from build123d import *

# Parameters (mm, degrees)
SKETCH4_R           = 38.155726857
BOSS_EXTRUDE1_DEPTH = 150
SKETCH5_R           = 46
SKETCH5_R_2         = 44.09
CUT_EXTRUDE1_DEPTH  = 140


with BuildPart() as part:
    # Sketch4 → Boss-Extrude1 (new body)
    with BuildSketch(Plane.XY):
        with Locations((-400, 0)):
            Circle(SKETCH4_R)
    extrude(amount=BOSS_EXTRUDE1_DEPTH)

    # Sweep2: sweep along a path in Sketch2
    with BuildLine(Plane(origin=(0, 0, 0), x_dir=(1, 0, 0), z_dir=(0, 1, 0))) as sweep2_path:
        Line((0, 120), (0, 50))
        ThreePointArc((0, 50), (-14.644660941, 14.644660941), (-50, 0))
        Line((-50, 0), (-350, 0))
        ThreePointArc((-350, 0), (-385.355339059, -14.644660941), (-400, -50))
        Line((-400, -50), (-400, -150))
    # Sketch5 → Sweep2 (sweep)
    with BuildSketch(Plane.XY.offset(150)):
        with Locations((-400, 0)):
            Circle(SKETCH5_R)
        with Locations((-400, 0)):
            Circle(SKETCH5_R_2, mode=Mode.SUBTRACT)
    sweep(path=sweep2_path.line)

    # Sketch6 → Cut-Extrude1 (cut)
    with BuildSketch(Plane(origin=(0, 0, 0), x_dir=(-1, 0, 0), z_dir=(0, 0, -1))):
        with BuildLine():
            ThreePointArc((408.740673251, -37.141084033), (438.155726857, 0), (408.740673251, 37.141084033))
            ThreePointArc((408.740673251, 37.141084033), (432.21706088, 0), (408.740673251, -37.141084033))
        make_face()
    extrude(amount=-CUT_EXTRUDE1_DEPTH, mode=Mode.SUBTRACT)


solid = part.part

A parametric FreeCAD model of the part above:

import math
import FreeCAD as App
import Part
import Sketcher

doc = App.newDocument("Part")
body = doc.addObject("PartDesign::Body", "Body")

sketch1 = body.newObject("Sketcher::SketchObject", "Sketch")
sketch1.AttachmentSupport = (doc.getObject("XY_Plane"), [""])
sketch1.MapMode = "FlatFace"
sketch1.addGeometry(Part.Circle(App.Vector(-400, 0, 0), App.Vector(0, 0, 1), 38), False)
sketch1.addConstraint([
    Sketcher.Constraint("PointOnObject", 0, 3, -1),
    Sketcher.Constraint("DistanceX", 0, 3, -1, 1, 400.0),
    Sketcher.Constraint("Diameter", 0, 76.311454),
])
pad1 = body.newObject("PartDesign::Pad", "Pad")
pad1.Profile = sketch1
pad1.Length = 150

sketch2 = body.newObject("Sketcher::SketchObject", "Sketch001")
sketch2.AttachmentSupport = (doc.getObject("XY_Plane"), [""])
sketch2.MapMode = "FlatFace"
sketch2.AttachmentOffset = App.Placement(App.Vector(0, 0, 150), App.Rotation())
sketch2.addGeometry([
    Part.Circle(App.Vector(-400, 0, 0), App.Vector(0, 0, 1), 46),
    Part.Circle(App.Vector(-400, 0, 0), App.Vector(0, 0, 1), 44),
], False)
sketch2.addConstraint([
    Sketcher.Constraint("Coincident", 1, 3, 0, 3),
    Sketcher.Constraint("PointOnObject", 0, 3, -1),
    Sketcher.Constraint("Diameter", 0, 92.0),
    Sketcher.Constraint("Diameter", 1, 88.18),
    Sketcher.Constraint("DistanceX", 0, 3, -1, 1, 400.0),
])

sketch3 = body.newObject("Sketcher::SketchObject", "Sketch002")
sketch3.AttachmentSupport = (doc.getObject("XZ_Plane"), [""])
sketch3.MapMode = "FlatFace"
sketch3.addGeometry([
    Part.LineSegment(App.Vector(0, -120, 0), App.Vector(0, -50, 0)),
    Part.ArcOfCircle(Part.Circle(App.Vector(-50, -50, 0), App.Vector(0, 0, 1), 50), math.radians(0), math.radians(90)),
    Part.LineSegment(App.Vector(-50, 0, 0), App.Vector(-350, 0, 0)),
    Part.ArcOfCircle(Part.Circle(App.Vector(-350, 50, 0), App.Vector(0, 0, 1), 50), math.radians(-180), math.radians(-90)),
    Part.LineSegment(App.Vector(-400, 50, 0), App.Vector(-400, 150, 0)),
], False)
sketch3.addConstraint([
    Sketcher.Constraint("Tangent", 0, 2, 1, 1),
    Sketcher.Constraint("Tangent", 1, 2, 2, 1),
    Sketcher.Constraint("Tangent", 2, 2, 3, 2),
    Sketcher.Constraint("Tangent", 3, 1, 4, 1),
    Sketcher.Constraint("Vertical", 0),
    Sketcher.Constraint("Horizontal", 2),
    Sketcher.Constraint("Vertical", 4),
    Sketcher.Constraint("Equal", 1, 3),
    Sketcher.Constraint("PointOnObject", 0, 1, -2),
    Sketcher.Constraint("PointOnObject", 1, 2, -1),
    Sketcher.Constraint("Radius", 1, 50.0),
    Sketcher.Constraint("DistanceX", 2, 2, 2, 1, 300.0),
    Sketcher.Constraint("DistanceY", 0, 1, 0, 2, 70.0),
    Sketcher.Constraint("DistanceY", 4, 1, 4, 2, 100.0),
])
doc.recompute()

additivepipe = body.newObject("PartDesign::AdditivePipe", "AdditivePipe")
additivepipe.Profile = sketch2
additivepipe.Spine = (sketch3, ["Edge1", "Edge2", "Edge3", "Edge4", "Edge5"])

sketch4 = body.newObject("Sketcher::SketchObject", "Sketch003")
sketch4.AttachmentSupport = (doc.getObject("XY_Plane"), [""])
sketch4.MapMode = "FlatFace"
sketch4.addGeometry([
    Part.ArcOfCircle(Part.Circle(App.Vector(-400, 0, 0), App.Vector(0, 0, 1), 38), math.radians(103), math.radians(257)),
    Part.ArcOfCircle(Part.Circle(App.Vector(-391, 0, 0), App.Vector(0, 0, 1), 41), math.radians(115), math.radians(245)),
], False)
sketch4.addConstraint([
    Sketcher.Constraint("Coincident", 0, 1, 1, 1),
    Sketcher.Constraint("Coincident", 1, 2, 0, 2),
    Sketcher.Constraint("Symmetric", 0, 1, 1, 2, -1),
    Sketcher.Constraint("DistanceX", 0, 3, -1, 1, 400.0),
    Sketcher.Constraint("Radius", 1, 41.117929),
    Sketcher.Constraint("Radius", 0, 38.155727),
    Sketcher.Constraint("DistanceX", 1, 3, -1, 1, 391.099131),
])
pocket1 = body.newObject("PartDesign::Pocket", "Pocket")
pocket1.Profile = sketch4
pocket1.Length = 140
pocket1.Reversed = True

doc.recompute()
